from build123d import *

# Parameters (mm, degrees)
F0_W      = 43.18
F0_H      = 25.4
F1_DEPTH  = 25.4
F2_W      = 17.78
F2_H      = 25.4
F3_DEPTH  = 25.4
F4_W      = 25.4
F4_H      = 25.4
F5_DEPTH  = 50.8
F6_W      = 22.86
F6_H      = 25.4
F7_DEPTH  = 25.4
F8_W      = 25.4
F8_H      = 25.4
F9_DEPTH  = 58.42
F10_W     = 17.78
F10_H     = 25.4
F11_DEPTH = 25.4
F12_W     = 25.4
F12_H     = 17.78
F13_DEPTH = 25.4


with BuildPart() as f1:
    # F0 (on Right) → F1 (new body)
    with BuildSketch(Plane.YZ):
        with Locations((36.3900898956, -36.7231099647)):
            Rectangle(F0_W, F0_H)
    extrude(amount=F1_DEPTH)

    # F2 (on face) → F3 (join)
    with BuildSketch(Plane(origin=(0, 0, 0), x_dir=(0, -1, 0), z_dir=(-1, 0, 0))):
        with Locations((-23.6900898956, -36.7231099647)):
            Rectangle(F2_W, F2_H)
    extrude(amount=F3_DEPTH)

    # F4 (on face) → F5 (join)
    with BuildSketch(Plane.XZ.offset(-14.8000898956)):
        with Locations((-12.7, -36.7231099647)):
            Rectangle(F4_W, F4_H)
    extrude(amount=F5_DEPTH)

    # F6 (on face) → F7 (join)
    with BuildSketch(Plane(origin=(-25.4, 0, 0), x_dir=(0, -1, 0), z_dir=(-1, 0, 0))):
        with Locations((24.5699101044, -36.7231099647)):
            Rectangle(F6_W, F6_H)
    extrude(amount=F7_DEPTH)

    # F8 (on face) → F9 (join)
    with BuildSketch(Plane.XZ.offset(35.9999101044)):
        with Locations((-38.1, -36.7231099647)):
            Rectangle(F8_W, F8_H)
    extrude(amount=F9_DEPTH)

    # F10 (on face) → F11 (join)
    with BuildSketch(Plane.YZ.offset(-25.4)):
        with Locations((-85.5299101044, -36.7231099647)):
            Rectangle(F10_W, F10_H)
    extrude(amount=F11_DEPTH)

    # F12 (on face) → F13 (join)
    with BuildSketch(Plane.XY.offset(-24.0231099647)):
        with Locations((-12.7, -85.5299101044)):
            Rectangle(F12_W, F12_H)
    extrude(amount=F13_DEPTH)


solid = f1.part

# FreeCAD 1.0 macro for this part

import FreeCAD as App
import Part
import Sketcher
from FreeCAD import Vector
Q = App.Units.Quantity


def add_polygon(sketch, points):
    """Adds a closed chain of lines whose ends are joined by coincident constraints."""
    first, n = sketch.GeometryCount, len(points)
    for a, b in zip(points, points[1:] + points[:1]):
        sketch.addGeometry(Part.LineSegment(App.Vector(*a, 0), App.Vector(*b, 0)), False)
    for i in range(n):
        sketch.addConstraint(Sketcher.Constraint("Coincident", first + i, 2, first + (i + 1) % n, 1))

doc = App.newDocument("Part")
body = doc.addObject("PartDesign::Body", "Body")

sketch1 = body.newObject("Sketcher::SketchObject", "Sketch")
sketch1.AttachmentSupport = (doc.getObject("YZ_Plane"), [""])
sketch1.MapMode = "FlatFace"
add_polygon(sketch1, [(15, -24), (15, -49), (58, -49), (58, -24)])
sketch1.addConstraint([
    Sketcher.Constraint("Vertical", 0),
    Sketcher.Constraint("Horizontal", 1),
    Sketcher.Constraint("Vertical", 2),
    Sketcher.Constraint("Horizontal", 3),
    Sketcher.Constraint("DistanceY", 0, 2, 0, 1, Q("1 in")),
    Sketcher.Constraint("DistanceX", 1, 1, 1, 2, Q("1.7 in")),
    Sketcher.Constraint("DistanceX", -1, 1, 0, 2, Q("14.80009 mm")),
    Sketcher.Constraint("DistanceY", 0, 2, -1, 1, Q("49.42311 mm")),
])
pad1 = body.newObject("PartDesign::Pad", "Pad")
pad1.Profile = sketch1
pad1.Length = Q("1 in")

sketch2 = body.newObject("Sketcher::SketchObject", "Sketch001")
sketch2.AttachmentSupport = (doc.getObject("YZ_Plane"), [""])
sketch2.MapMode = "FlatFace"
add_polygon(sketch2, [(33, -24), (33, -49), (15, -49), (15, -24)])
sketch2.addConstraint([
    Sketcher.Constraint("Vertical", 0),
    Sketcher.Constraint("Horizontal", 1),
    Sketcher.Constraint("Vertical", 2),
    Sketcher.Constraint("Horizontal", 3),
    Sketcher.Constraint("DistanceY", 0, 2, 0, 1, Q("1 in")),
    Sketcher.Constraint("DistanceX", 1, 2, 1, 1, Q("0.7 in")),
    Sketcher.Constraint("DistanceX", -1, 1, 0, 2, Q("32.58009 mm")),
    Sketcher.Constraint("DistanceY", 0, 2, -1, 1, Q("49.42311 mm")),
])
pad2 = body.newObject("PartDesign::Pad", "Pad001")
pad2.Profile = sketch2
pad2.Length = Q("1 in")
pad2.Reversed = True

sketch3 = body.newObject("Sketcher::SketchObject", "Sketch002")
sketch3.AttachmentSupport = (doc.getObject("XZ_Plane"), [""])
sketch3.MapMode = "FlatFace"
sketch3.AttachmentOffset = App.Placement(Vector(0, 0, -14.80009), App.Rotation())
add_polygon(sketch3, [(-25, -24), (-25, -49), (0, -49), (0, -24)])
sketch3.addConstraint([
    Sketcher.Constraint("Vertical", 0),
    Sketcher.Constraint("Horizontal", 1),
    Sketcher.Constraint("Vertical", 2),
    Sketcher.Constraint("Horizontal", 3),
    Sketcher.Constraint("PointOnObject", 1, 2, -2),
    Sketcher.Constraint("Equal", 3, 0),
    Sketcher.Constraint("DistanceX", 1, 1, 1, 2, Q("1 in")),
    Sketcher.Constraint("DistanceY", 0, 2, -1, 1, Q("49.42311 mm")),
])
pad3 = body.newObject("PartDesign::Pad", "Pad002")
pad3.Profile = sketch3
pad3.Length = Q("2 in")

sketch4 = body.newObject("Sketcher::SketchObject", "Sketch003")
sketch4.AttachmentSupport = (doc.getObject("YZ_Plane"), [""])
sketch4.MapMode = "FlatFace"
sketch4.AttachmentOffset = App.Placement(Vector(0, 0, -1 * 25.4), App.Rotation())
add_polygon(sketch4, [(-13, -24), (-13, -49), (-36, -49), (-36, -24)])
sketch4.addConstraint([
    Sketcher.Constraint("Vertical", 0),
    Sketcher.Constraint("Horizontal", 1),
    Sketcher.Constraint("Vertical", 2),
    Sketcher.Constraint("Horizontal", 3),
    Sketcher.Constraint("DistanceY", 0, 2, 0, 1, Q("1 in")),
    Sketcher.Constraint("DistanceX", 1, 2, 1, 1, Q("0.9 in")),
    Sketcher.Constraint("DistanceX", 0, 2, -1, 1, Q("13.13991 mm")),
    Sketcher.Constraint("DistanceY", 0, 2, -1, 1, Q("49.42311 mm")),
])
pad4 = body.newObject("PartDesign::Pad", "Pad003")
pad4.Profile = sketch4
pad4.Length = Q("1 in")
pad4.Reversed = True

sketch5 = body.newObject("Sketcher::SketchObject", "Sketch004")
sketch5.AttachmentSupport = (doc.getObject("XZ_Plane"), [""])
sketch5.MapMode = "FlatFace"
sketch5.AttachmentOffset = App.Placement(Vector(0, 0, 35.99991), App.Rotation())
add_polygon(sketch5, [(-51, -24), (-51, -49), (-25, -49), (-25, -24)])
sketch5.addConstraint([
    Sketcher.Constraint("Vertical", 0),
    Sketcher.Constraint("Horizontal", 1),
    Sketcher.Constraint("Vertical", 2),
    Sketcher.Constraint("Horizontal", 3),
    Sketcher.Constraint("Equal", 3, 0),
    Sketcher.Constraint("DistanceX", 1, 1, 1, 2, Q("1 in")),
    Sketcher.Constraint("DistanceX", 0, 2, -1, 1, Q("2 in")),
    Sketcher.Constraint("DistanceY", 0, 2, -1, 1, Q("49.42311 mm")),
])
pad5 = body.newObject("PartDesign::Pad", "Pad004")
pad5.Profile = sketch5
pad5.Length = Q("2.3 in")

sketch6 = body.newObject("Sketcher::SketchObject", "Sketch005")
sketch6.AttachmentSupport = (doc.getObject("YZ_Plane"), [""])
sketch6.MapMode = "FlatFace"
sketch6.AttachmentOffset = App.Placement(Vector(0, 0, -1 * 25.4), App.Rotation())
add_polygon(sketch6, [(-94, -24), (-94, -49), (-77, -49), (-77, -24)])
sketch6.addConstraint([
    Sketcher.Constraint("Vertical", 0),
    Sketcher.Constraint("Horizontal", 1),
    Sketcher.Constraint("Vertical", 2),
    Sketcher.Constraint("Horizontal", 3),
    Sketcher.Constraint("DistanceY", 0, 2, 0, 1, Q("1 in")),
    Sketcher.Constraint("DistanceX", 1, 1, 1, 2, Q("0.7 in")),
    Sketcher.Constraint("DistanceX", 0, 2, -1, 1, Q("94.41991 mm")),
    Sketcher.Constraint("DistanceY", 0, 2, -1, 1, Q("49.42311 mm")),
])
pad6 = body.newObject("PartDesign::Pad", "Pad005")
pad6.Profile = sketch6
pad6.Length = Q("1 in")

sketch7 = body.newObject("Sketcher::SketchObject", "Sketch006")
sketch7.AttachmentSupport = (doc.getObject("XY_Plane"), [""])
sketch7.MapMode = "FlatFace"
sketch7.AttachmentOffset = App.Placement(Vector(0, 0, -24.02311), App.Rotation())
add_polygon(sketch7, [(-25, -77), (-25, -94), (0, -94), (0, -77)])
sketch7.addConstraint([
    Sketcher.Constraint("Vertical", 0),
    Sketcher.Constraint("Horizontal", 1),
    Sketcher.Constraint("Vertical", 2),
    Sketcher.Constraint("Horizontal", 3),
    Sketcher.Constraint("PointOnObject", 1, 2, -2),
    Sketcher.Constraint("DistanceX", 1, 1, 1, 2, Q("1 in")),
    Sketcher.Constraint("DistanceY", 0, 2, 0, 1, Q("0.7 in")),
    Sketcher.Constraint("DistanceY", 0, 2, -1, 1, Q("94.41991 mm")),
])
pad7 = body.newObject("PartDesign::Pad", "Pad006")
pad7.Profile = sketch7
pad7.Length = Q("1 in")

doc.recompute()
